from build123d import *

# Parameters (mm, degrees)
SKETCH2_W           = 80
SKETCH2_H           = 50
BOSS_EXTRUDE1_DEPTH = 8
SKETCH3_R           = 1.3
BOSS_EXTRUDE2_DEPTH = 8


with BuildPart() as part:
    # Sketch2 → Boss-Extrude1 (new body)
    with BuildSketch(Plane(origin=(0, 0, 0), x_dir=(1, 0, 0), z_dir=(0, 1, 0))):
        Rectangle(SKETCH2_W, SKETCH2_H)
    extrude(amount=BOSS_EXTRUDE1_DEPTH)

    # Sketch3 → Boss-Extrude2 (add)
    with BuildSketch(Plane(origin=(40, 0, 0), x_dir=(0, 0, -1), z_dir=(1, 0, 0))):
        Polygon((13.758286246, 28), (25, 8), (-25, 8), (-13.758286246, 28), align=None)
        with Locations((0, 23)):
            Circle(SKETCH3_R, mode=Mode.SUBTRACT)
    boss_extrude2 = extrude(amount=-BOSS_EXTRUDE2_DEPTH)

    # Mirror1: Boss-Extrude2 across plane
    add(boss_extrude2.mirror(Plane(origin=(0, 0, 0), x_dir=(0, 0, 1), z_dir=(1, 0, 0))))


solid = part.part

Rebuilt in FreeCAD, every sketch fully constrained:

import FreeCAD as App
import Part
import Sketcher
Q = App.Units.Quantity

doc = App.newDocument("Part")
params = doc.addObject("Spreadsheet::Sheet", "Params")
for row, (alias, value) in enumerate([
    ("sketch1_width", "80 mm"),
    ("sketch1_height", "50 mm"),
    ("pad1_length", "8 mm"),
    ("sketch2_diameter", "2.6 mm"),
    ("sketch2_height", "50 mm"),
    ("pad2_length", "8 mm"),
], start=1):
    params.set(f"A{row}", alias)
    params.set(f"B{row}", "=" + value)
    params.setAlias(f"B{row}", alias)

body = doc.addObject("PartDesign::Body", "Body")

# Sketch on XZ plane
sketch1 = body.newObject("Sketcher::SketchObject", "Sketch")
sketch1.AttachmentSupport = (doc.getObject("XZ_Plane"), [""])
sketch1.MapMode = "FlatFace"
sketch1.addGeometry(Part.LineSegment(App.Vector(-40, -25, 0), App.Vector(-40, 25, 0)), False)
sketch1.addGeometry(Part.LineSegment(App.Vector(-40, 25, 0), App.Vector(40, 25, 0)), False)
sketch1.addGeometry(Part.LineSegment(App.Vector(40, 25, 0), App.Vector(40, -25, 0)), False)
sketch1.addGeometry(Part.LineSegment(App.Vector(40, -25, 0), App.Vector(-40, -25, 0)), False)
sketch1.addConstraint(Sketcher.Constraint("Coincident", 0, 2, 1, 1))
sketch1.addConstraint(Sketcher.Constraint("Coincident", 1, 2, 2, 1))
sketch1.addConstraint(Sketcher.Constraint("Coincident", 2, 2, 3, 1))
sketch1.addConstraint(Sketcher.Constraint("Coincident", 3, 2, 0, 1))
sketch1.addConstraint(Sketcher.Constraint("Vertical", 0))
sketch1.addConstraint(Sketcher.Constraint("Horizontal", 1))
sketch1.addConstraint(Sketcher.Constraint("Vertical", 2))
sketch1.addConstraint(Sketcher.Constraint("Horizontal", 3))
sketch1.addConstraint(Sketcher.Constraint("Symmetric", 0, 2, 2, 2, -1, 1))
sketch1.addConstraint(Sketcher.Constraint("DistanceX", 1, 1, 1, 2, Q("80 mm")))
sketch1.addConstraint(Sketcher.Constraint("DistanceY", 0, 1, 0, 2, Q("50 mm")))
sketch1.setExpression("Constraints[9]", "Params.sketch1_width")
sketch1.setExpression("Constraints[10]", "Params.sketch1_height")
pad1 = body.newObject("PartDesign::Pad", "Pad")
pad1.Profile = sketch1
pad1.setExpression("Length", "Params.pad1_length")
pad1.Reversed = True

# Sketch on YZ plane
sketch2 = body.newObject("Sketcher::SketchObject", "Sketch001")
sketch2.AttachmentSupport = (doc.getObject("YZ_Plane"), [""])
sketch2.MapMode = "FlatFace"
sketch2.AttachmentOffset = App.Placement(App.Vector(0, 0, 40), App.Rotation())
sketch2.addGeometry(Part.LineSegment(App.Vector(8, -25, 0), App.Vector(28, -13.8, 0)), False)
sketch2.addGeometry(Part.LineSegment(App.Vector(28, -13.8, 0), App.Vector(28, 13.8, 0)), False)
sketch2.addGeometry(Part.LineSegment(App.Vector(28, 13.8, 0), App.Vector(8, 25, 0)), False)
sketch2.addGeometry(Part.LineSegment(App.Vector(8, 25, 0), App.Vector(8, -25, 0)), False)
sketch2.addGeometry(Part.Circle(App.Vector(23, 0, 0), App.Vector(0, 0, 1), 1.3), False)
sketch2.addConstraint(Sketcher.Constraint("Coincident", 0, 2, 1, 1))
sketch2.addConstraint(Sketcher.Constraint("Coincident", 1, 2, 2, 1))
sketch2.addConstraint(Sketcher.Constraint("Coincident", 2, 2, 3, 1))
sketch2.addConstraint(Sketcher.Constraint("Coincident", 3, 2, 0, 1))
sketch2.addConstraint(Sketcher.Constraint("Vertical", 1))
sketch2.addConstraint(Sketcher.Constraint("Vertical", 3))
sketch2.addConstraint(Sketcher.Constraint("PointOnObject", 4, 3, -1))
sketch2.addConstraint(Sketcher.Constraint("Equal", 0, 2))
sketch2.addConstraint(Sketcher.Constraint("Diameter", 4, Q("2.6 mm")))
sketch2.addConstraint(Sketcher.Constraint("DistanceY", 3, 2, 3, 1, Q("50 mm")))
sketch2.addConstraint(Sketcher.Constraint("DistanceX", -1, 1, 4, 3, Q("23 mm")))
sketch2.addConstraint(Sketcher.Constraint("DistanceX", -1, 1, 0, 2, Q("28 mm")))
sketch2.addConstraint(Sketcher.Constraint("DistanceX", -1, 1, 2, 2, Q("8 mm")))
sketch2.addConstraint(Sketcher.Constraint("DistanceY", -1, 1, 2, 2, Q("25 mm")))
sketch2.addConstraint(Sketcher.Constraint("Distance", 0, Q("22.942888 mm")))
sketch2.setExpression("Constraints[8]", "Params.sketch2_diameter")
sketch2.setExpression("Constraints[9]", "Params.sketch2_height")
pad2 = body.newObject("PartDesign::Pad", "Pad001")
pad2.Profile = sketch2
pad2.setExpression("Length", "Params.pad2_length")
pad2.Reversed = True
doc.recompute()

mirrored = body.newObject("PartDesign::Mirrored", "Mirrored")
mirrored.Originals = [pad2]
mirrored.MirrorPlane = (doc.getObject("YZ_Plane"), [""])
body.Tip = mirrored

doc.recompute()
